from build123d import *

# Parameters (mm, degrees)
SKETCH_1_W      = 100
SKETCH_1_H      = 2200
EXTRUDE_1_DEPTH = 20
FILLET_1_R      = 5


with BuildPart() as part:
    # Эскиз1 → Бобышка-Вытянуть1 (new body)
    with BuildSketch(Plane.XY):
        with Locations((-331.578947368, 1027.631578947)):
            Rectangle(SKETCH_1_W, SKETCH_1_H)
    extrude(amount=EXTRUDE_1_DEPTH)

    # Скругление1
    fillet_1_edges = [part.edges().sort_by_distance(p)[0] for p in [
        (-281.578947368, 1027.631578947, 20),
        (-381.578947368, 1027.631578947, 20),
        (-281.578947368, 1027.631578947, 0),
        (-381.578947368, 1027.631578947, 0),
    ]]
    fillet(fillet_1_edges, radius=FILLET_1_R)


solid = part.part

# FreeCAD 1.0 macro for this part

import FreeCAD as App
import Part
import Sketcher
from FreeCAD import Vector
Q = App.Units.Quantity


def edges_at(feature, points):
    """Names of the edges that pass closest to the given points."""
    edges = feature.Shape.Edges
    near = lambda p: min(range(len(edges)), key=lambda i: edges[i].distToShape(Part.Vertex(*p))[0])
    return sorted({f"Edge{near(p) + 1}" for p in points})

doc = App.newDocument("Part")
body = doc.addObject("PartDesign::Body", "Body")

# Sketch on XY plane
sketch1 = body.newObject("Sketcher::SketchObject", "Sketch")
sketch1.AttachmentSupport = (doc.getObject("XY_Plane"), [""])
sketch1.MapMode = "FlatFace"
sketch1.addGeometry([
    Part.LineSegment(Vector(-382, 2128, 0), Vector(-382, -72, 0)),
    Part.LineSegment(Vector(-382, -72, 0), Vector(-282, -72, 0)),
    Part.LineSegment(Vector(-282, -72, 0), Vector(-282, 2128, 0)),
    Part.LineSegment(Vector(-282, 2128, 0), Vector(-382, 2128, 0)),
], False)
sketch1.addConstraint([
    Sketcher.Constraint("Coincident", 0, 2, 1, 1),
    Sketcher.Constraint("Coincident", 1, 2, 2, 1),
    Sketcher.Constraint("Coincident", 2, 2, 3, 1),
    Sketcher.Constraint("Coincident", 3, 2, 0, 1),
    Sketcher.Constraint("Vertical", 0),
    Sketcher.Constraint("Horizontal", 1),
    Sketcher.Constraint("Vertical", 2),
    Sketcher.Constraint("Horizontal", 3),
    Sketcher.Constraint("DistanceX", 1, 1, 1, 2, Q("100 mm")),
    Sketcher.Constraint("DistanceY", 0, 2, 0, 1, Q("2200 mm")),
    Sketcher.Constraint("DistanceY", 0, 2, -1, 1, Q("72.368421 mm")),
    Sketcher.Constraint("DistanceX", 0, 2, -1, 1, Q("381.578947 mm")),
])
pad1 = body.newObject("PartDesign::Pad", "Pad")
pad1.Profile = sketch1
pad1.Length = 20
doc.recompute()

fillet = body.newObject("PartDesign::Fillet", "Fillet")
fillet.Base = (pad1, edges_at(pad1, [
    (-281.579, 1027.632, 20),
    (-381.579, 1027.632, 20),
    (-281.579, 1027.632, 0),
    (-381.579, 1027.632, 0),
]))
fillet.Radius = 5

doc.recompute()
